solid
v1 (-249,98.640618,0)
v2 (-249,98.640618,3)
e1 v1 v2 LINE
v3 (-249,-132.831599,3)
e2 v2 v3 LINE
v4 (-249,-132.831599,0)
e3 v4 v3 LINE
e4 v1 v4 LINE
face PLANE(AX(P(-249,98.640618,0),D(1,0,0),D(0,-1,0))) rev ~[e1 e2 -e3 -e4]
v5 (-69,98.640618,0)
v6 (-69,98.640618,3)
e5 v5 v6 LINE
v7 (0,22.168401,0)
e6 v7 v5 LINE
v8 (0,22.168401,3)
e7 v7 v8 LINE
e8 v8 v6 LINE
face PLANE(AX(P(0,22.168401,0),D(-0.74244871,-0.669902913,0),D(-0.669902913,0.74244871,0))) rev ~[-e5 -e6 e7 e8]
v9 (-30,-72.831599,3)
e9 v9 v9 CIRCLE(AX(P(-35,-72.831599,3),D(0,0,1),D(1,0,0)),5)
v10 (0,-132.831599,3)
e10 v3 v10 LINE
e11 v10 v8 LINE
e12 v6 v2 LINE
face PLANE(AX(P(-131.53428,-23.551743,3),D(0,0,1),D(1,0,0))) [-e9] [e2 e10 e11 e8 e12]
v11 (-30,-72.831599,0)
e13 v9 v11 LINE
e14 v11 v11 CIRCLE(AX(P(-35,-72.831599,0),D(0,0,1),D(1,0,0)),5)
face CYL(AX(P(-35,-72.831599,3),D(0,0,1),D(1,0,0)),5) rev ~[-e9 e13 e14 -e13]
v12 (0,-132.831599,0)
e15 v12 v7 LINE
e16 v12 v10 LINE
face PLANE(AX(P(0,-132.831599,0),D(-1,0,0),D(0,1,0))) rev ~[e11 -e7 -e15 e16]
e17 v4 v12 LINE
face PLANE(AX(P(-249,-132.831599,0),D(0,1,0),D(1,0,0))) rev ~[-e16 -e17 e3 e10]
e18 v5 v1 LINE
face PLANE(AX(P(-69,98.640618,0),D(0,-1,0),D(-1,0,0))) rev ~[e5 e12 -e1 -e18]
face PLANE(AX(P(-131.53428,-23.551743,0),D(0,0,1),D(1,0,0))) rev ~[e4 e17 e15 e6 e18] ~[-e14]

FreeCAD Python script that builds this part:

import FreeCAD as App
import Part
import Sketcher

doc = App.newDocument("Part")
params = doc.addObject("Spreadsheet::Sheet", "Params")
for row, (alias, value) in enumerate([
    ("sketch1_width", "180 mm"),
    ("sketch1_width2", "249 mm"),
    ("sketch1_height", "155 mm"),
    ("sketch1_length", "103 mm"),
    ("pad1_length", "3 mm"),
    ("sketch2_diameter", "10 mm"),
    ("pocket1_length", "3 mm"),
], start=1):
    params.set(f"A{row}", alias)
    params.set(f"B{row}", "=" + value)
    params.setAlias(f"B{row}", alias)

body = doc.addObject("PartDesign::Body", "Body")

# Sketch on XY plane
sketch1 = body.newObject("Sketcher::SketchObject", "Sketch")
sketch1.AttachmentSupport = (doc.getObject("XY_Plane"), [""])
sketch1.MapMode = "FlatFace"
sketch1.addGeometry([
    Part.LineSegment(App.Vector(-69, 99, 0), App.Vector(-249, 99, 0)),  # 0
    Part.LineSegment(App.Vector(-249, 99, 0), App.Vector(-249, -133, 0)),  # 1
    Part.LineSegment(App.Vector(-249, -133, 0), App.Vector(0, -133, 0)),  # 2
    Part.LineSegment(App.Vector(0, -133, 0), App.Vector(0, 22, 0)),  # 3
    Part.LineSegment(App.Vector(0, 22, 0), App.Vector(-69, 99, 0)),  # 4
], False)
sketch1.addConstraint([
    Sketcher.Constraint("Coincident", 0, 2, 1, 1),
    Sketcher.Constraint("Coincident", 1, 2, 2, 1),
    Sketcher.Constraint("Coincident", 2, 2, 3, 1),
    Sketcher.Constraint("Coincident", 3, 2, 4, 1),
    Sketcher.Constraint("Coincident", 4, 2, 0, 1),
    Sketcher.Constraint("Horizontal", 0),
    Sketcher.Constraint("Vertical", 1),
    Sketcher.Constraint("Horizontal", 2),
    Sketcher.Constraint("Vertical", 3),
    Sketcher.Constraint("PointOnObject", 2, 2, -2),
    Sketcher.Constraint("DistanceX", 0, 2, 0, 1, 180.0),
    Sketcher.Constraint("DistanceX", 2, 1, 2, 2, 249.0),
    Sketcher.Constraint("DistanceY", 3, 1, 3, 2, 155.0),
    Sketcher.Constraint("Distance", 4, 103.0),
    Sketcher.Constraint("DistanceY", 1, 2, -1, 1, 132.831599),
])
sketch1.setExpression("Constraints[10]", "Params.sketch1_width")
sketch1.setExpression("Constraints[11]", "Params.sketch1_width2")
sketch1.setExpression("Constraints[12]", "Params.sketch1_height")
sketch1.setExpression("Constraints[13]", "Params.sketch1_length")
pad1 = body.newObject("PartDesign::Pad", "Pad")
pad1.Profile = sketch1
pad1.setExpression("Length", "Params.pad1_length")

# Sketch on XY plane
sketch2 = body.newObject("Sketcher::SketchObject", "Sketch001")
sketch2.AttachmentSupport = (doc.getObject("XY_Plane"), [""])
sketch2.MapMode = "FlatFace"
sketch2.AttachmentOffset = App.Placement(App.Vector(0, 0, 3), App.Rotation())
sketch2.addGeometry(Part.Circle(App.Vector(-35, -73, 0), App.Vector(0, 0, 1), 5), False)
sketch2.addConstraint([
    Sketcher.Constraint("Diameter", 0, 10.0),
    Sketcher.Constraint("DistanceX", 0, 3, -1, 1, 35.0),
    Sketcher.Constraint("DistanceY", 0, 3, -1, 1, 72.831599),
])
sketch2.setExpression("Constraints[0]", "Params.sketch2_diameter")
pocket1 = body.newObject("PartDesign::Pocket", "Pocket")
pocket1.Profile = sketch2
pocket1.setExpression("Length", "Params.pocket1_length")

doc.recompute()
